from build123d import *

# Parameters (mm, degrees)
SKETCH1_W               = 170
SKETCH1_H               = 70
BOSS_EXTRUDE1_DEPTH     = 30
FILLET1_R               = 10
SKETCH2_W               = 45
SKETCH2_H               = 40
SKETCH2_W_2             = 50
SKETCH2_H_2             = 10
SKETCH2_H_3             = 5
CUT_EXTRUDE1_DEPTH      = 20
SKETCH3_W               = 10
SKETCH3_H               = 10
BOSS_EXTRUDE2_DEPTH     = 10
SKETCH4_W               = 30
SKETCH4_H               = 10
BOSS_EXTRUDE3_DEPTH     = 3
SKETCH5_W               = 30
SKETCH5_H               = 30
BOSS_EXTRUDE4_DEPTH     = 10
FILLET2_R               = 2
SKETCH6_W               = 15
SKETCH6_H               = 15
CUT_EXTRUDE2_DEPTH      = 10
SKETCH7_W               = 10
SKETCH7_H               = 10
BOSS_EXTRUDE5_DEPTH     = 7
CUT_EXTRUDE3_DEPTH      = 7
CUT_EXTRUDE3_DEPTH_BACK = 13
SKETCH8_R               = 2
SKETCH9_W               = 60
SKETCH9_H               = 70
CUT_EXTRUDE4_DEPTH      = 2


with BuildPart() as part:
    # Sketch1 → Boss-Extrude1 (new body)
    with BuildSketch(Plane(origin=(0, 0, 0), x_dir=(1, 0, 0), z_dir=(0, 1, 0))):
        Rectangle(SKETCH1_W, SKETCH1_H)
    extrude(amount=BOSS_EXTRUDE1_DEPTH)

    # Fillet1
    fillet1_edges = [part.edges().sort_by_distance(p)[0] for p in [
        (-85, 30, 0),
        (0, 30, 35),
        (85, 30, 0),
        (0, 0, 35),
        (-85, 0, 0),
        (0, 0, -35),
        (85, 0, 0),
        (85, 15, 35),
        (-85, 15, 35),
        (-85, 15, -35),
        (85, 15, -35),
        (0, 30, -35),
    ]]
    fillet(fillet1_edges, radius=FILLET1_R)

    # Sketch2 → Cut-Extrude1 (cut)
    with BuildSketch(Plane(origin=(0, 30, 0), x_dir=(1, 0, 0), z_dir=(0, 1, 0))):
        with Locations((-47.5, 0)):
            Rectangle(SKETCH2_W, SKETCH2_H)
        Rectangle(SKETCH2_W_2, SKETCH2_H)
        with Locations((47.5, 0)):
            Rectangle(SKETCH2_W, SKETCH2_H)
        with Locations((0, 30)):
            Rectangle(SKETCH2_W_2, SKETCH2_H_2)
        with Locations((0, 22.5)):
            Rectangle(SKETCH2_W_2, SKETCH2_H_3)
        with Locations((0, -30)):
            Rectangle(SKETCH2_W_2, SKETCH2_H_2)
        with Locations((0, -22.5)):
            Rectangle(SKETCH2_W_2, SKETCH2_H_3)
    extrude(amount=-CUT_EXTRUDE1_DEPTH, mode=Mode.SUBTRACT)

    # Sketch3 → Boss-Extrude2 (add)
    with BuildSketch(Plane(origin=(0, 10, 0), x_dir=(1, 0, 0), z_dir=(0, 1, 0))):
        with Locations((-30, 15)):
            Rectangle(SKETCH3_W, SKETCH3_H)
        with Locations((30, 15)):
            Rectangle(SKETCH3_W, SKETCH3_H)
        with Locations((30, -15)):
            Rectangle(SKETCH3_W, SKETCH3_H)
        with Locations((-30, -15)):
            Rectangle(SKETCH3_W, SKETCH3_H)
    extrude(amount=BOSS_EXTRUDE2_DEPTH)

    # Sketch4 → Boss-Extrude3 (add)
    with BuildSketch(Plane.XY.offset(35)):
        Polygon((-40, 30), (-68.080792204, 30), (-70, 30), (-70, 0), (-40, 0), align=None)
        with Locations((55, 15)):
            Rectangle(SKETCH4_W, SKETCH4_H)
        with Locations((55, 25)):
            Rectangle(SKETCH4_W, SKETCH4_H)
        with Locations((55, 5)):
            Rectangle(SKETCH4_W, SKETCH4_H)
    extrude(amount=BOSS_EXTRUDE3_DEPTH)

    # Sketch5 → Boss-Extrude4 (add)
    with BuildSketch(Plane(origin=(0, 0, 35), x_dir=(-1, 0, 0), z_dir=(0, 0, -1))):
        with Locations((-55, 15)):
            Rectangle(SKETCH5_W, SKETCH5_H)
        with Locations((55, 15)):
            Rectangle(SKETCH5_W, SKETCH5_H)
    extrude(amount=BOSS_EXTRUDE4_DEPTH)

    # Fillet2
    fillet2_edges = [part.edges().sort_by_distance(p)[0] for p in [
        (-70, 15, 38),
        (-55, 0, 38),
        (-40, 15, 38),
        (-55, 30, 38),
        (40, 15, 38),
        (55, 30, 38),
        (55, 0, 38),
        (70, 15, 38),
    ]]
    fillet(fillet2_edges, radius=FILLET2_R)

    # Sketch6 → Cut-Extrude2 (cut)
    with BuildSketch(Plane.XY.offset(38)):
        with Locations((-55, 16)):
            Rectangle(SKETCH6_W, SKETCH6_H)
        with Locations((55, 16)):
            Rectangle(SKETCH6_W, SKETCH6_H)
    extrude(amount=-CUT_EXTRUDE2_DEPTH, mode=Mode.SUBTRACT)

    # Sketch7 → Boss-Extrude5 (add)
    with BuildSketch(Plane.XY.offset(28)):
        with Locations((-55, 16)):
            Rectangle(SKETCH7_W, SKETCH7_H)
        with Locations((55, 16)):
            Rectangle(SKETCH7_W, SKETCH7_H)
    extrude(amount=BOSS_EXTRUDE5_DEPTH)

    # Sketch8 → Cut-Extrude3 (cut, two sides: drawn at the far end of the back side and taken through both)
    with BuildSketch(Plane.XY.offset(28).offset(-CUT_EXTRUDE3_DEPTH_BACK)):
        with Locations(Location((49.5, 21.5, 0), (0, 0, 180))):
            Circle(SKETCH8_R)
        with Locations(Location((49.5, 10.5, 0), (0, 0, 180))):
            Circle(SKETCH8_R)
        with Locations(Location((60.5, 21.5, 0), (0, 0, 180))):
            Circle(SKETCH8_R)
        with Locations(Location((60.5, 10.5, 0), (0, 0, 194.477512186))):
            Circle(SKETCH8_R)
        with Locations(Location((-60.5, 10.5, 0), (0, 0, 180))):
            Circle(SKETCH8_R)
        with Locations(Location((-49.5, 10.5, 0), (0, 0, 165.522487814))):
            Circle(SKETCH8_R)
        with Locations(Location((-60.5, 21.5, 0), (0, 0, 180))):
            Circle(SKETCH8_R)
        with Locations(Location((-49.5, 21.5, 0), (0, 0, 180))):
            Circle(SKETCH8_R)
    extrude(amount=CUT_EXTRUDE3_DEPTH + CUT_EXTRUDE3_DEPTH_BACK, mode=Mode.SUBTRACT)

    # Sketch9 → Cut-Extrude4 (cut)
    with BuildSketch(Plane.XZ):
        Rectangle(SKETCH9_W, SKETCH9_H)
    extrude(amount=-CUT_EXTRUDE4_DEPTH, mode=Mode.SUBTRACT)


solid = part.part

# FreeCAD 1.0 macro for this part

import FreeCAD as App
import Part
import Sketcher

V = App.Vector
Q = App.Units.Quantity


def edges_at(feature, points):
    """Names of the edges that pass closest to the given points."""
    edges = feature.Shape.Edges
    near = lambda p: min(range(len(edges)), key=lambda i: edges[i].distToShape(Part.Vertex(*p))[0])
    return sorted({f"Edge{near(p) + 1}" for p in points})

doc = App.newDocument("Part")
body = doc.addObject("PartDesign::Body", "Body")

# Sketch on XZ plane
sketch1 = body.newObject("Sketcher::SketchObject", "Sketch")
sketch1.AttachmentSupport = (doc.getObject("XZ_Plane"), [""])
sketch1.MapMode = "FlatFace"
sketch1.addGeometry([
    Part.LineSegment(V(-85, -35, 0), V(-85, 35, 0)),
    Part.LineSegment(V(-85, 35, 0), V(85, 35, 0)),
    Part.LineSegment(V(85, 35, 0), V(85, -35, 0)),
    Part.LineSegment(V(85, -35, 0), V(-85, -35, 0)),
], False)
sketch1.addConstraint([
    Sketcher.Constraint("Coincident", 0, 2, 1, 1),
    Sketcher.Constraint("Coincident", 1, 2, 2, 1),
    Sketcher.Constraint("Coincident", 2, 2, 3, 1),
    Sketcher.Constraint("Coincident", 3, 2, 0, 1),
    Sketcher.Constraint("Vertical", 0),
    Sketcher.Constraint("Horizontal", 1),
    Sketcher.Constraint("Vertical", 2),
    Sketcher.Constraint("Horizontal", 3),
    Sketcher.Constraint("Symmetric", 0, 2, 2, 2, -1, 1),
    Sketcher.Constraint("DistanceX", 1, 1, 1, 2, Q("170 mm")),
    Sketcher.Constraint("DistanceY", 0, 1, 0, 2, Q("70 mm")),
])
pad1 = body.newObject("PartDesign::Pad", "Pad")
pad1.Profile = sketch1
pad1.Length = 30
pad1.Reversed = True
doc.recompute()

fillet = body.newObject("PartDesign::Fillet", "Fillet")
fillet.Base = (pad1, ["Edge1"])
fillet.UseAllEdges = True
fillet.Radius = 10

# Sketch on XZ plane
sketch2 = body.newObject("Sketcher::SketchObject", "Sketch001")
sketch2.AttachmentSupport = (doc.getObject("XZ_Plane"), [""])
sketch2.MapMode = "FlatFace"
sketch2.AttachmentOffset = App.Placement(V(0, 0, -30), App.Rotation())
sketch2.addGeometry([
    Part.LineSegment(V(-70, -20, 0), V(-70, 20, 0)),  # 0
    Part.LineSegment(V(-70, 20, 0), V(-25, 20, 0)),  # 1
    Part.LineSegment(V(-25, 20, 0), V(-25, 35, 0)),  # 2
    Part.LineSegment(V(-25, 35, 0), V(25, 35, 0)),  # 3
    Part.LineSegment(V(25, 35, 0), V(25, 20, 0)),  # 4
    Part.LineSegment(V(25, 20, 0), V(70, 20, 0)),  # 5
    Part.LineSegment(V(70, 20, 0), V(70, -20, 0)),  # 6
    Part.LineSegment(V(70, -20, 0), V(25, -20, 0)),  # 7
    Part.LineSegment(V(25, -20, 0), V(25, -35, 0)),  # 8
    Part.LineSegment(V(25, -35, 0), V(-25, -35, 0)),  # 9
    Part.LineSegment(V(-25, -35, 0), V(-25, -20, 0)),  # 10
    Part.LineSegment(V(-25, -20, 0), V(-70, -20, 0)),  # 11
], False)
sketch2.addConstraint([
    Sketcher.Constraint("Coincident", 0, 2, 1, 1),
    Sketcher.Constraint("Coincident", 1, 2, 2, 1),
    Sketcher.Constraint("Coincident", 2, 2, 3, 1),
    Sketcher.Constraint("Coincident", 3, 2, 4, 1),
    Sketcher.Constraint("Coincident", 4, 2, 5, 1),
    Sketcher.Constraint("Coincident", 5, 2, 6, 1),
    Sketcher.Constraint("Coincident", 6, 2, 7, 1),
    Sketcher.Constraint("Coincident", 7, 2, 8, 1),
    Sketcher.Constraint("Coincident", 8, 2, 9, 1),
    Sketcher.Constraint("Coincident", 9, 2, 10, 1),
    Sketcher.Constraint("Coincident", 10, 2, 11, 1),
    Sketcher.Constraint("Coincident", 11, 2, 0, 1),
    Sketcher.Constraint("Vertical", 0),
    Sketcher.Constraint("Horizontal", 1),
    Sketcher.Constraint("Vertical", 2),
    Sketcher.Constraint("Horizontal", 3),
    Sketcher.Constraint("Vertical", 4),
    Sketcher.Constraint("Horizontal", 5),
    Sketcher.Constraint("Vertical", 6),
    Sketcher.Constraint("Horizontal", 7),
    Sketcher.Constraint("Vertical", 8),
    Sketcher.Constraint("Horizontal", 9),
    Sketcher.Constraint("Vertical", 10),
    Sketcher.Constraint("Horizontal", 11),
    Sketcher.Constraint("Symmetric", 0, 2, 6, 2, -1, 1),
    Sketcher.Constraint("Symmetric", 2, 2, 8, 2, -1, 1),
    Sketcher.Constraint("Symmetric", 4, 2, 10, 2, -1, 1),
    Sketcher.Constraint("Symmetric", 1, 2, 4, 2, -2),
    Sketcher.Constraint("DistanceX", 1, 1, 1, 2, Q("45 mm")),
    Sketcher.Constraint("DistanceX", 3, 1, 3, 2, Q("50 mm")),
    Sketcher.Constraint("DistanceY", 0, 1, 0, 2, Q("40 mm")),
    Sketcher.Constraint("DistanceY", 2, 1, 2, 2, Q("15 mm")),
])
pocket1 = body.newObject("PartDesign::Pocket", "Pocket")
pocket1.Profile = sketch2
pocket1.Length = 20
pocket1.Reversed = True

# Sketch on XZ plane
sketch3 = body.newObject("Sketcher::SketchObject", "Sketch002")
sketch3.AttachmentSupport = (doc.getObject("XZ_Plane"), [""])
sketch3.MapMode = "FlatFace"
sketch3.AttachmentOffset = App.Placement(V(0, 0, -10), App.Rotation())
sketch3.addGeometry([
    Part.LineSegment(V(-35, -20, 0), V(-35, -10, 0)),  # 0
    Part.LineSegment(V(-35, -10, 0), V(-25, -10, 0)),  # 1
    Part.LineSegment(V(-25, -10, 0), V(-25, -20, 0)),  # 2
    Part.LineSegment(V(-25, -20, 0), V(-35, -20, 0)),  # 3
    Part.LineSegment(V(25, -20, 0), V(25, -10, 0)),  # 4
    Part.LineSegment(V(25, -10, 0), V(35, -10, 0)),  # 5
    Part.LineSegment(V(35, -10, 0), V(35, -20, 0)),  # 6
    Part.LineSegment(V(35, -20, 0), V(25, -20, 0)),  # 7
    Part.LineSegment(V(25, 10, 0), V(25, 20, 0)),  # 8
    Part.LineSegment(V(25, 20, 0), V(35, 20, 0)),  # 9
    Part.LineSegment(V(35, 20, 0), V(35, 10, 0)),  # 10
    Part.LineSegment(V(35, 10, 0), V(25, 10, 0)),  # 11
    Part.LineSegment(V(-35, 10, 0), V(-35, 20, 0)),  # 12
    Part.LineSegment(V(-35, 20, 0), V(-25, 20, 0)),  # 13
    Part.LineSegment(V(-25, 20, 0), V(-25, 10, 0)),  # 14
    Part.LineSegment(V(-25, 10, 0), V(-35, 10, 0)),  # 15
], False)
sketch3.addConstraint([
    Sketcher.Constraint("Coincident", 0, 2, 1, 1),
    Sketcher.Constraint("Coincident", 1, 2, 2, 1),
    Sketcher.Constraint("Coincident", 2, 2, 3, 1),
    Sketcher.Constraint("Coincident", 3, 2, 0, 1),
    Sketcher.Constraint("Coincident", 4, 2, 5, 1),
    Sketcher.Constraint("Coincident", 5, 2, 6, 1),
    Sketcher.Constraint("Coincident", 6, 2, 7, 1),
    Sketcher.Constraint("Coincident", 7, 2, 4, 1),
    Sketcher.Constraint("Coincident", 8, 2, 9, 1),
    Sketcher.Constraint("Coincident", 9, 2, 10, 1),
    Sketcher.Constraint("Coincident", 10, 2, 11, 1),
    Sketcher.Constraint("Coincident", 11, 2, 8, 1),
    Sketcher.Constraint("Coincident", 12, 2, 13, 1),
    Sketcher.Constraint("Coincident", 13, 2, 14, 1),
    Sketcher.Constraint("Coincident", 14, 2, 15, 1),
    Sketcher.Constraint("Coincident", 15, 2, 12, 1),
    Sketcher.Constraint("Vertical", 0),
    Sketcher.Constraint("Horizontal", 1),
    Sketcher.Constraint("Vertical", 2),
    Sketcher.Constraint("Horizontal", 3),
    Sketcher.Constraint("Vertical", 4),
    Sketcher.Constraint("Horizontal", 5),
    Sketcher.Constraint("Vertical", 6),
    Sketcher.Constraint("Horizontal", 7),
    Sketcher.Constraint("Vertical", 8),
    Sketcher.Constraint("Horizontal", 9),
    Sketcher.Constraint("Vertical", 10),
    Sketcher.Constraint("Horizontal", 11),
    Sketcher.Constraint("Vertical", 12),
    Sketcher.Constraint("Horizontal", 13),
    Sketcher.Constraint("Vertical", 14),
    Sketcher.Constraint("Horizontal", 15),
    Sketcher.Constraint("Symmetric", 2, 2, 8, 2, -1, 1),
    Sketcher.Constraint("Symmetric", 0, 2, 10, 2, -1, 1),
    Sketcher.Constraint("Symmetric", 6, 2, 12, 2, -1, 1),
    Sketcher.Constraint("Symmetric", 4, 2, 14, 2, -1, 1),
    Sketcher.Constraint("Symmetric", 1, 2, 4, 2, -2),
    Sketcher.Constraint("Symmetric", 3, 2, 6, 2, -2),
    Sketcher.Constraint("Equal", 15, 0),
    Sketcher.Constraint("DistanceX", 1, 1, 1, 2, Q("10 mm")),
    Sketcher.Constraint("DistanceX", 0, 2, -1, 1, Q("35 mm")),
    Sketcher.Constraint("DistanceY", 0, 2, -1, 1, Q("10 mm")),
])
pad2 = body.newObject("PartDesign::Pad", "Pad001")
pad2.Profile = sketch3
pad2.Length = 10
pad2.Reversed = True

# Sketch on XY plane
sketch4 = body.newObject("Sketcher::SketchObject", "Sketch003")
sketch4.AttachmentSupport = (doc.getObject("XY_Plane"), [""])
sketch4.MapMode = "FlatFace"
sketch4.AttachmentOffset = App.Placement(V(0, 0, 35), App.Rotation())
sketch4.addGeometry([
    Part.LineSegment(V(-40, 30, 0), V(-70, 30, 0)),  # 0
    Part.LineSegment(V(-70, 30, 0), V(-70, 0, 0)),  # 1
    Part.LineSegment(V(-70, 0, 0), V(-40, 0, 0)),  # 2
    Part.LineSegment(V(-40, 0, 0), V(-40, 30, 0)),  # 3
    Part.LineSegment(V(70, 30, 0), V(40, 30, 0)),  # 4
    Part.LineSegment(V(40, 30, 0), V(40, 0, 0)),  # 5
    Part.LineSegment(V(40, 0, 0), V(70, 0, 0)),  # 6
    Part.LineSegment(V(70, 0, 0), V(70, 30, 0)),  # 7
], False)
sketch4.addConstraint([
    Sketcher.Constraint("Coincident", 0, 2, 1, 1),
    Sketcher.Constraint("Coincident", 1, 2, 2, 1),
    Sketcher.Constraint("Coincident", 2, 2, 3, 1),
    Sketcher.Constraint("Coincident", 3, 2, 0, 1),
    Sketcher.Constraint("Coincident", 4, 2, 5, 1),
    Sketcher.Constraint("Coincident", 5, 2, 6, 1),
    Sketcher.Constraint("Coincident", 6, 2, 7, 1),
    Sketcher.Constraint("Coincident", 7, 2, 4, 1),
    Sketcher.Constraint("Horizontal", 0),
    Sketcher.Constraint("Vertical", 1),
    Sketcher.Constraint("Horizontal", 2),
    Sketcher.Constraint("Vertical", 3),
    Sketcher.Constraint("Horizontal", 4),
    Sketcher.Constraint("Vertical", 5),
    Sketcher.Constraint("Horizontal", 6),
    Sketcher.Constraint("Vertical", 7),
    Sketcher.Constraint("Symmetric", 2, 2, 5, 2, -1, 1),
    Sketcher.Constraint("Symmetric", 1, 2, 6, 2, -2),
    Sketcher.Constraint("Horizontal", 3, 2, 4, 2),
    Sketcher.Constraint("Equal", 6, 1),
    Sketcher.Constraint("DistanceX", 0, 2, 0, 1, Q("30 mm")),
    Sketcher.Constraint("DistanceX", 0, 2, -1, 1, Q("70 mm")),
])
pad3 = body.newObject("PartDesign::Pad", "Pad002")
pad3.Profile = sketch4
pad3.Length = 3

# Sketch on XY plane
sketch5 = body.newObject("Sketcher::SketchObject", "Sketch004")
sketch5.AttachmentSupport = (doc.getObject("XY_Plane"), [""])
sketch5.MapMode = "FlatFace"
sketch5.AttachmentOffset = App.Placement(V(0, 0, 35), App.Rotation())
sketch5.addGeometry([
    Part.LineSegment(V(70, 30, 0), V(70, 0, 0)),  # 0
    Part.LineSegment(V(70, 0, 0), V(40, 0, 0)),  # 1
    Part.LineSegment(V(40, 0, 0), V(40, 30, 0)),  # 2
    Part.LineSegment(V(40, 30, 0), V(70, 30, 0)),  # 3
    Part.LineSegment(V(-40, 30, 0), V(-40, 0, 0)),  # 4
    Part.LineSegment(V(-40, 0, 0), V(-70, 0, 0)),  # 5
    Part.LineSegment(V(-70, 0, 0), V(-70, 30, 0)),  # 6
    Part.LineSegment(V(-70, 30, 0), V(-40, 30, 0)),  # 7
], False)
sketch5.addConstraint([
    Sketcher.Constraint("Coincident", 0, 2, 1, 1),
    Sketcher.Constraint("Coincident", 1, 2, 2, 1),
    Sketcher.Constraint("Coincident", 2, 2, 3, 1),
    Sketcher.Constraint("Coincident", 3, 2, 0, 1),
    Sketcher.Constraint("Coincident", 4, 2, 5, 1),
    Sketcher.Constraint("Coincident", 5, 2, 6, 1),
    Sketcher.Constraint("Coincident", 6, 2, 7, 1),
    Sketcher.Constraint("Coincident", 7, 2, 4, 1),
    Sketcher.Constraint("Vertical", 0),
    Sketcher.Constraint("Horizontal", 1),
    Sketcher.Constraint("Vertical", 2),
    Sketcher.Constraint("Horizontal", 3),
    Sketcher.Constraint("Vertical", 4),
    Sketcher.Constraint("Horizontal", 5),
    Sketcher.Constraint("Vertical", 6),
    Sketcher.Constraint("Horizontal", 7),
    Sketcher.Constraint("Symmetric", 1, 2, 4, 2, -1, 1),
    Sketcher.Constraint("Symmetric", 0, 2, 5, 2, -2),
    Sketcher.Constraint("Horizontal", 3, 2, 6, 2),
    Sketcher.Constraint("Equal", 7, 0),
    Sketcher.Constraint("DistanceX", 1, 2, 1, 1, Q("30 mm")),
    Sketcher.Constraint("DistanceX", -1, 1, 0, 2, Q("70 mm")),
])
pad4 = body.newObject("PartDesign::Pad", "Pad003")
pad4.Profile = sketch5
pad4.Length = 10
pad4.Reversed = True
doc.recompute()

fillet2 = body.newObject("PartDesign::Fillet", "Fillet001")
fillet2.Base = (pad4, edges_at(pad4, [
    (-70, 15, 38),
    (-55, 0, 38),
    (-40, 15, 38),
    (-55, 30, 38),
    (40, 15, 38),
    (55, 30, 38),
    (55, 0, 38),
    (70, 15, 38),
]))
fillet2.Radius = 2

# Sketch on XY plane
sketch6 = body.newObject("Sketcher::SketchObject", "Sketch005")
sketch6.AttachmentSupport = (doc.getObject("XY_Plane"), [""])
sketch6.MapMode = "FlatFace"
sketch6.AttachmentOffset = App.Placement(V(0, 0, 38), App.Rotation())
sketch6.addGeometry([
    Part.LineSegment(V(-62, 24, 0), V(-62, 8, 0)),  # 0
    Part.LineSegment(V(-62, 8, 0), V(-48, 8, 0)),  # 1
    Part.LineSegment(V(-48, 8, 0), V(-48, 24, 0)),  # 2
    Part.LineSegment(V(-48, 24, 0), V(-62, 24, 0)),  # 3
    Part.LineSegment(V(48, 24, 0), V(48, 8, 0)),  # 4
    Part.LineSegment(V(48, 8, 0), V(62, 8, 0)),  # 5
    Part.LineSegment(V(62, 8, 0), V(62, 24, 0)),  # 6
    Part.LineSegment(V(62, 24, 0), V(48, 24, 0)),  # 7
], False)
sketch6.addConstraint([
    Sketcher.Constraint("Coincident", 0, 2, 1, 1),
    Sketcher.Constraint("Coincident", 1, 2, 2, 1),
    Sketcher.Constraint("Coincident", 2, 2, 3, 1),
    Sketcher.Constraint("Coincident", 3, 2, 0, 1),
    Sketcher.Constraint("Coincident", 4, 2, 5, 1),
    Sketcher.Constraint("Coincident", 5, 2, 6, 1),
    Sketcher.Constraint("Coincident", 6, 2, 7, 1),
    Sketcher.Constraint("Coincident", 7, 2, 4, 1),
    Sketcher.Constraint("Vertical", 0),
    Sketcher.Constraint("Horizontal", 1),
    Sketcher.Constraint("Vertical", 2),
    Sketcher.Constraint("Horizontal", 3),
    Sketcher.Constraint("Vertical", 4),
    Sketcher.Constraint("Horizontal", 5),
    Sketcher.Constraint("Vertical", 6),
    Sketcher.Constraint("Horizontal", 7),
    Sketcher.Constraint("Symmetric", 1, 2, 4, 2, -2),
    Sketcher.Constraint("Symmetric", 3, 2, 6, 2, -2),
    Sketcher.Constraint("Equal", 7, 0),
    Sketcher.Constraint("DistanceX", 1, 1, 1, 2, Q("15 mm")),
    Sketcher.Constraint("DistanceX", 1, 2, 4, 2, Q("95 mm")),
    Sketcher.Constraint("DistanceY", -1, 1, 0, 2, Q("8.5 mm")),
])
pocket2 = body.newObject("PartDesign::Pocket", "Pocket001")
pocket2.Profile = sketch6
pocket2.Length = 10

# Sketch on XY plane
sketch7 = body.newObject("Sketcher::SketchObject", "Sketch006")
sketch7.AttachmentSupport = (doc.getObject("XY_Plane"), [""])
sketch7.MapMode = "FlatFace"
sketch7.AttachmentOffset = App.Placement(V(0, 0, 28), App.Rotation())
sketch7.addGeometry([
    Part.LineSegment(V(-60, 21, 0), V(-60, 11, 0)),  # 0
    Part.LineSegment(V(-60, 11, 0), V(-50, 11, 0)),  # 1
    Part.LineSegment(V(-50, 11, 0), V(-50, 21, 0)),  # 2
    Part.LineSegment(V(-50, 21, 0), V(-60, 21, 0)),  # 3
    Part.LineSegment(V(50, 21, 0), V(50, 11, 0)),  # 4
    Part.LineSegment(V(50, 11, 0), V(60, 11, 0)),  # 5
    Part.LineSegment(V(60, 11, 0), V(60, 21, 0)),  # 6
    Part.LineSegment(V(60, 21, 0), V(50, 21, 0)),  # 7
], False)
sketch7.addConstraint([
    Sketcher.Constraint("Coincident", 0, 2, 1, 1),
    Sketcher.Constraint("Coincident", 1, 2, 2, 1),
    Sketcher.Constraint("Coincident", 2, 2, 3, 1),
    Sketcher.Constraint("Coincident", 3, 2, 0, 1),
    Sketcher.Constraint("Coincident", 4, 2, 5, 1),
    Sketcher.Constraint("Coincident", 5, 2, 6, 1),
    Sketcher.Constraint("Coincident", 6, 2, 7, 1),
    Sketcher.Constraint("Coincident", 7, 2, 4, 1),
    Sketcher.Constraint("Vertical", 0),
    Sketcher.Constraint("Horizontal", 1),
    Sketcher.Constraint("Vertical", 2),
    Sketcher.Constraint("Horizontal", 3),
    Sketcher.Constraint("Vertical", 4),
    Sketcher.Constraint("Horizontal", 5),
    Sketcher.Constraint("Vertical", 6),
    Sketcher.Constraint("Horizontal", 7),
    Sketcher.Constraint("Symmetric", 1, 2, 4, 2, -2),
    Sketcher.Constraint("Symmetric", 3, 2, 6, 2, -2),
    Sketcher.Constraint("Equal", 7, 0),
    Sketcher.Constraint("DistanceX", 1, 1, 1, 2, Q("10 mm")),
    Sketcher.Constraint("DistanceX", 0, 2, -1, 1, Q("60 mm")),
    Sketcher.Constraint("DistanceY", -1, 1, 0, 2, Q("11 mm")),
])
pad5 = body.newObject("PartDesign::Pad", "Pad004")
pad5.Profile = sketch7
pad5.Length = 7

# Sketch on XY plane
sketch8 = body.newObject("Sketcher::SketchObject", "Sketch007")
sketch8.AttachmentSupport = (doc.getObject("XY_Plane"), [""])
sketch8.MapMode = "FlatFace"
sketch8.AttachmentOffset = App.Placement(V(0, 0, 28), App.Rotation())
sketch8.addGeometry([
    Part.Circle(V(49.5, 21.5, 0), V(0, 0, 1), 2),  # 0
    Part.Circle(V(49.5, 10.5, 0), V(0, 0, 1), 2),  # 1
    Part.Circle(V(60.5, 21.5, 0), V(0, 0, 1), 2),  # 2
    Part.Circle(V(60.5, 10.5, 0), V(0, 0, 1), 2),  # 3
    Part.Circle(V(-60.5, 10.5, 0), V(0, 0, 1), 2),  # 4
    Part.Circle(V(-49.5, 10.5, 0), V(0, 0, 1), 2),  # 5
    Part.Circle(V(-60.5, 21.5, 0), V(0, 0, 1), 2),  # 6
    Part.Circle(V(-49.5, 21.5, 0), V(0, 0, 1), 2),  # 7
], False)
sketch8.addConstraint([
    Sketcher.Constraint("Equal", 0, 1),
    Sketcher.Constraint("Equal", 1, 2),
    Sketcher.Constraint("Equal", 2, 3),
    Sketcher.Constraint("Equal", 3, 4),
    Sketcher.Constraint("Equal", 4, 5),
    Sketcher.Constraint("Equal", 5, 6),
    Sketcher.Constraint("Equal", 6, 7),
    Sketcher.Constraint("Symmetric", 3, 3, 4, 3, -2),
    Sketcher.Constraint("Symmetric", 1, 3, 5, 3, -2),
    Sketcher.Constraint("Symmetric", 2, 3, 6, 3, -2),
    Sketcher.Constraint("Symmetric", 0, 3, 7, 3, -2),
    Sketcher.Constraint("Horizontal", 0, 3, 2, 3),
    Sketcher.Constraint("Horizontal", 1, 3, 3, 3),
    Sketcher.Constraint("Vertical", 0, 3, 1, 3),
    Sketcher.Constraint("Vertical", 2, 3, 3, 3),
    Sketcher.Constraint("Diameter", 0, Q("4 mm")),
    Sketcher.Constraint("DistanceY", 1, 3, 0, 3, Q("11 mm")),
    Sketcher.Constraint("DistanceX", 0, 3, 2, 3, Q("11 mm")),
    Sketcher.Constraint("DistanceX", 4, 3, 1, 3, Q("110 mm")),
    Sketcher.Constraint("DistanceY", -1, 1, 0, 3, Q("21.5 mm")),
])
pocket3 = body.newObject("PartDesign::Pocket", "Pocket002")
pocket3.Profile = sketch8
pocket3.Type = "TwoLengths"
pocket3.Length = 7
pocket3.Length2 = 13
pocket3.Reversed = True

# Sketch on XZ plane
sketch9 = body.newObject("Sketcher::SketchObject", "Sketch008")
sketch9.AttachmentSupport = (doc.getObject("XZ_Plane"), [""])
sketch9.MapMode = "FlatFace"
sketch9.addGeometry([
    Part.LineSegment(V(-30, 35, 0), V(-30, -35, 0)),
    Part.LineSegment(V(-30, -35, 0), V(30, -35, 0)),
    Part.LineSegment(V(30, -35, 0), V(30, 35, 0)),
    Part.LineSegment(V(30, 35, 0), V(-30, 35, 0)),
], False)
sketch9.addConstraint([
    Sketcher.Constraint("Coincident", 0, 2, 1, 1),
    Sketcher.Constraint("Coincident", 1, 2, 2, 1),
    Sketcher.Constraint("Coincident", 2, 2, 3, 1),
    Sketcher.Constraint("Coincident", 3, 2, 0, 1),
    Sketcher.Constraint("Vertical", 0),
    Sketcher.Constraint("Horizontal", 1),
    Sketcher.Constraint("Vertical", 2),
    Sketcher.Constraint("Horizontal", 3),
    Sketcher.Constraint("Symmetric", 0, 2, 2, 2, -1, 1),
    Sketcher.Constraint("DistanceX", 1, 1, 1, 2, Q("60 mm")),
    Sketcher.Constraint("DistanceY", 0, 2, 0, 1, Q("70 mm")),
])
pocket4 = body.newObject("PartDesign::Pocket", "Pocket003")
pocket4.Profile = sketch9
pocket4.Length = 2

doc.recompute()
